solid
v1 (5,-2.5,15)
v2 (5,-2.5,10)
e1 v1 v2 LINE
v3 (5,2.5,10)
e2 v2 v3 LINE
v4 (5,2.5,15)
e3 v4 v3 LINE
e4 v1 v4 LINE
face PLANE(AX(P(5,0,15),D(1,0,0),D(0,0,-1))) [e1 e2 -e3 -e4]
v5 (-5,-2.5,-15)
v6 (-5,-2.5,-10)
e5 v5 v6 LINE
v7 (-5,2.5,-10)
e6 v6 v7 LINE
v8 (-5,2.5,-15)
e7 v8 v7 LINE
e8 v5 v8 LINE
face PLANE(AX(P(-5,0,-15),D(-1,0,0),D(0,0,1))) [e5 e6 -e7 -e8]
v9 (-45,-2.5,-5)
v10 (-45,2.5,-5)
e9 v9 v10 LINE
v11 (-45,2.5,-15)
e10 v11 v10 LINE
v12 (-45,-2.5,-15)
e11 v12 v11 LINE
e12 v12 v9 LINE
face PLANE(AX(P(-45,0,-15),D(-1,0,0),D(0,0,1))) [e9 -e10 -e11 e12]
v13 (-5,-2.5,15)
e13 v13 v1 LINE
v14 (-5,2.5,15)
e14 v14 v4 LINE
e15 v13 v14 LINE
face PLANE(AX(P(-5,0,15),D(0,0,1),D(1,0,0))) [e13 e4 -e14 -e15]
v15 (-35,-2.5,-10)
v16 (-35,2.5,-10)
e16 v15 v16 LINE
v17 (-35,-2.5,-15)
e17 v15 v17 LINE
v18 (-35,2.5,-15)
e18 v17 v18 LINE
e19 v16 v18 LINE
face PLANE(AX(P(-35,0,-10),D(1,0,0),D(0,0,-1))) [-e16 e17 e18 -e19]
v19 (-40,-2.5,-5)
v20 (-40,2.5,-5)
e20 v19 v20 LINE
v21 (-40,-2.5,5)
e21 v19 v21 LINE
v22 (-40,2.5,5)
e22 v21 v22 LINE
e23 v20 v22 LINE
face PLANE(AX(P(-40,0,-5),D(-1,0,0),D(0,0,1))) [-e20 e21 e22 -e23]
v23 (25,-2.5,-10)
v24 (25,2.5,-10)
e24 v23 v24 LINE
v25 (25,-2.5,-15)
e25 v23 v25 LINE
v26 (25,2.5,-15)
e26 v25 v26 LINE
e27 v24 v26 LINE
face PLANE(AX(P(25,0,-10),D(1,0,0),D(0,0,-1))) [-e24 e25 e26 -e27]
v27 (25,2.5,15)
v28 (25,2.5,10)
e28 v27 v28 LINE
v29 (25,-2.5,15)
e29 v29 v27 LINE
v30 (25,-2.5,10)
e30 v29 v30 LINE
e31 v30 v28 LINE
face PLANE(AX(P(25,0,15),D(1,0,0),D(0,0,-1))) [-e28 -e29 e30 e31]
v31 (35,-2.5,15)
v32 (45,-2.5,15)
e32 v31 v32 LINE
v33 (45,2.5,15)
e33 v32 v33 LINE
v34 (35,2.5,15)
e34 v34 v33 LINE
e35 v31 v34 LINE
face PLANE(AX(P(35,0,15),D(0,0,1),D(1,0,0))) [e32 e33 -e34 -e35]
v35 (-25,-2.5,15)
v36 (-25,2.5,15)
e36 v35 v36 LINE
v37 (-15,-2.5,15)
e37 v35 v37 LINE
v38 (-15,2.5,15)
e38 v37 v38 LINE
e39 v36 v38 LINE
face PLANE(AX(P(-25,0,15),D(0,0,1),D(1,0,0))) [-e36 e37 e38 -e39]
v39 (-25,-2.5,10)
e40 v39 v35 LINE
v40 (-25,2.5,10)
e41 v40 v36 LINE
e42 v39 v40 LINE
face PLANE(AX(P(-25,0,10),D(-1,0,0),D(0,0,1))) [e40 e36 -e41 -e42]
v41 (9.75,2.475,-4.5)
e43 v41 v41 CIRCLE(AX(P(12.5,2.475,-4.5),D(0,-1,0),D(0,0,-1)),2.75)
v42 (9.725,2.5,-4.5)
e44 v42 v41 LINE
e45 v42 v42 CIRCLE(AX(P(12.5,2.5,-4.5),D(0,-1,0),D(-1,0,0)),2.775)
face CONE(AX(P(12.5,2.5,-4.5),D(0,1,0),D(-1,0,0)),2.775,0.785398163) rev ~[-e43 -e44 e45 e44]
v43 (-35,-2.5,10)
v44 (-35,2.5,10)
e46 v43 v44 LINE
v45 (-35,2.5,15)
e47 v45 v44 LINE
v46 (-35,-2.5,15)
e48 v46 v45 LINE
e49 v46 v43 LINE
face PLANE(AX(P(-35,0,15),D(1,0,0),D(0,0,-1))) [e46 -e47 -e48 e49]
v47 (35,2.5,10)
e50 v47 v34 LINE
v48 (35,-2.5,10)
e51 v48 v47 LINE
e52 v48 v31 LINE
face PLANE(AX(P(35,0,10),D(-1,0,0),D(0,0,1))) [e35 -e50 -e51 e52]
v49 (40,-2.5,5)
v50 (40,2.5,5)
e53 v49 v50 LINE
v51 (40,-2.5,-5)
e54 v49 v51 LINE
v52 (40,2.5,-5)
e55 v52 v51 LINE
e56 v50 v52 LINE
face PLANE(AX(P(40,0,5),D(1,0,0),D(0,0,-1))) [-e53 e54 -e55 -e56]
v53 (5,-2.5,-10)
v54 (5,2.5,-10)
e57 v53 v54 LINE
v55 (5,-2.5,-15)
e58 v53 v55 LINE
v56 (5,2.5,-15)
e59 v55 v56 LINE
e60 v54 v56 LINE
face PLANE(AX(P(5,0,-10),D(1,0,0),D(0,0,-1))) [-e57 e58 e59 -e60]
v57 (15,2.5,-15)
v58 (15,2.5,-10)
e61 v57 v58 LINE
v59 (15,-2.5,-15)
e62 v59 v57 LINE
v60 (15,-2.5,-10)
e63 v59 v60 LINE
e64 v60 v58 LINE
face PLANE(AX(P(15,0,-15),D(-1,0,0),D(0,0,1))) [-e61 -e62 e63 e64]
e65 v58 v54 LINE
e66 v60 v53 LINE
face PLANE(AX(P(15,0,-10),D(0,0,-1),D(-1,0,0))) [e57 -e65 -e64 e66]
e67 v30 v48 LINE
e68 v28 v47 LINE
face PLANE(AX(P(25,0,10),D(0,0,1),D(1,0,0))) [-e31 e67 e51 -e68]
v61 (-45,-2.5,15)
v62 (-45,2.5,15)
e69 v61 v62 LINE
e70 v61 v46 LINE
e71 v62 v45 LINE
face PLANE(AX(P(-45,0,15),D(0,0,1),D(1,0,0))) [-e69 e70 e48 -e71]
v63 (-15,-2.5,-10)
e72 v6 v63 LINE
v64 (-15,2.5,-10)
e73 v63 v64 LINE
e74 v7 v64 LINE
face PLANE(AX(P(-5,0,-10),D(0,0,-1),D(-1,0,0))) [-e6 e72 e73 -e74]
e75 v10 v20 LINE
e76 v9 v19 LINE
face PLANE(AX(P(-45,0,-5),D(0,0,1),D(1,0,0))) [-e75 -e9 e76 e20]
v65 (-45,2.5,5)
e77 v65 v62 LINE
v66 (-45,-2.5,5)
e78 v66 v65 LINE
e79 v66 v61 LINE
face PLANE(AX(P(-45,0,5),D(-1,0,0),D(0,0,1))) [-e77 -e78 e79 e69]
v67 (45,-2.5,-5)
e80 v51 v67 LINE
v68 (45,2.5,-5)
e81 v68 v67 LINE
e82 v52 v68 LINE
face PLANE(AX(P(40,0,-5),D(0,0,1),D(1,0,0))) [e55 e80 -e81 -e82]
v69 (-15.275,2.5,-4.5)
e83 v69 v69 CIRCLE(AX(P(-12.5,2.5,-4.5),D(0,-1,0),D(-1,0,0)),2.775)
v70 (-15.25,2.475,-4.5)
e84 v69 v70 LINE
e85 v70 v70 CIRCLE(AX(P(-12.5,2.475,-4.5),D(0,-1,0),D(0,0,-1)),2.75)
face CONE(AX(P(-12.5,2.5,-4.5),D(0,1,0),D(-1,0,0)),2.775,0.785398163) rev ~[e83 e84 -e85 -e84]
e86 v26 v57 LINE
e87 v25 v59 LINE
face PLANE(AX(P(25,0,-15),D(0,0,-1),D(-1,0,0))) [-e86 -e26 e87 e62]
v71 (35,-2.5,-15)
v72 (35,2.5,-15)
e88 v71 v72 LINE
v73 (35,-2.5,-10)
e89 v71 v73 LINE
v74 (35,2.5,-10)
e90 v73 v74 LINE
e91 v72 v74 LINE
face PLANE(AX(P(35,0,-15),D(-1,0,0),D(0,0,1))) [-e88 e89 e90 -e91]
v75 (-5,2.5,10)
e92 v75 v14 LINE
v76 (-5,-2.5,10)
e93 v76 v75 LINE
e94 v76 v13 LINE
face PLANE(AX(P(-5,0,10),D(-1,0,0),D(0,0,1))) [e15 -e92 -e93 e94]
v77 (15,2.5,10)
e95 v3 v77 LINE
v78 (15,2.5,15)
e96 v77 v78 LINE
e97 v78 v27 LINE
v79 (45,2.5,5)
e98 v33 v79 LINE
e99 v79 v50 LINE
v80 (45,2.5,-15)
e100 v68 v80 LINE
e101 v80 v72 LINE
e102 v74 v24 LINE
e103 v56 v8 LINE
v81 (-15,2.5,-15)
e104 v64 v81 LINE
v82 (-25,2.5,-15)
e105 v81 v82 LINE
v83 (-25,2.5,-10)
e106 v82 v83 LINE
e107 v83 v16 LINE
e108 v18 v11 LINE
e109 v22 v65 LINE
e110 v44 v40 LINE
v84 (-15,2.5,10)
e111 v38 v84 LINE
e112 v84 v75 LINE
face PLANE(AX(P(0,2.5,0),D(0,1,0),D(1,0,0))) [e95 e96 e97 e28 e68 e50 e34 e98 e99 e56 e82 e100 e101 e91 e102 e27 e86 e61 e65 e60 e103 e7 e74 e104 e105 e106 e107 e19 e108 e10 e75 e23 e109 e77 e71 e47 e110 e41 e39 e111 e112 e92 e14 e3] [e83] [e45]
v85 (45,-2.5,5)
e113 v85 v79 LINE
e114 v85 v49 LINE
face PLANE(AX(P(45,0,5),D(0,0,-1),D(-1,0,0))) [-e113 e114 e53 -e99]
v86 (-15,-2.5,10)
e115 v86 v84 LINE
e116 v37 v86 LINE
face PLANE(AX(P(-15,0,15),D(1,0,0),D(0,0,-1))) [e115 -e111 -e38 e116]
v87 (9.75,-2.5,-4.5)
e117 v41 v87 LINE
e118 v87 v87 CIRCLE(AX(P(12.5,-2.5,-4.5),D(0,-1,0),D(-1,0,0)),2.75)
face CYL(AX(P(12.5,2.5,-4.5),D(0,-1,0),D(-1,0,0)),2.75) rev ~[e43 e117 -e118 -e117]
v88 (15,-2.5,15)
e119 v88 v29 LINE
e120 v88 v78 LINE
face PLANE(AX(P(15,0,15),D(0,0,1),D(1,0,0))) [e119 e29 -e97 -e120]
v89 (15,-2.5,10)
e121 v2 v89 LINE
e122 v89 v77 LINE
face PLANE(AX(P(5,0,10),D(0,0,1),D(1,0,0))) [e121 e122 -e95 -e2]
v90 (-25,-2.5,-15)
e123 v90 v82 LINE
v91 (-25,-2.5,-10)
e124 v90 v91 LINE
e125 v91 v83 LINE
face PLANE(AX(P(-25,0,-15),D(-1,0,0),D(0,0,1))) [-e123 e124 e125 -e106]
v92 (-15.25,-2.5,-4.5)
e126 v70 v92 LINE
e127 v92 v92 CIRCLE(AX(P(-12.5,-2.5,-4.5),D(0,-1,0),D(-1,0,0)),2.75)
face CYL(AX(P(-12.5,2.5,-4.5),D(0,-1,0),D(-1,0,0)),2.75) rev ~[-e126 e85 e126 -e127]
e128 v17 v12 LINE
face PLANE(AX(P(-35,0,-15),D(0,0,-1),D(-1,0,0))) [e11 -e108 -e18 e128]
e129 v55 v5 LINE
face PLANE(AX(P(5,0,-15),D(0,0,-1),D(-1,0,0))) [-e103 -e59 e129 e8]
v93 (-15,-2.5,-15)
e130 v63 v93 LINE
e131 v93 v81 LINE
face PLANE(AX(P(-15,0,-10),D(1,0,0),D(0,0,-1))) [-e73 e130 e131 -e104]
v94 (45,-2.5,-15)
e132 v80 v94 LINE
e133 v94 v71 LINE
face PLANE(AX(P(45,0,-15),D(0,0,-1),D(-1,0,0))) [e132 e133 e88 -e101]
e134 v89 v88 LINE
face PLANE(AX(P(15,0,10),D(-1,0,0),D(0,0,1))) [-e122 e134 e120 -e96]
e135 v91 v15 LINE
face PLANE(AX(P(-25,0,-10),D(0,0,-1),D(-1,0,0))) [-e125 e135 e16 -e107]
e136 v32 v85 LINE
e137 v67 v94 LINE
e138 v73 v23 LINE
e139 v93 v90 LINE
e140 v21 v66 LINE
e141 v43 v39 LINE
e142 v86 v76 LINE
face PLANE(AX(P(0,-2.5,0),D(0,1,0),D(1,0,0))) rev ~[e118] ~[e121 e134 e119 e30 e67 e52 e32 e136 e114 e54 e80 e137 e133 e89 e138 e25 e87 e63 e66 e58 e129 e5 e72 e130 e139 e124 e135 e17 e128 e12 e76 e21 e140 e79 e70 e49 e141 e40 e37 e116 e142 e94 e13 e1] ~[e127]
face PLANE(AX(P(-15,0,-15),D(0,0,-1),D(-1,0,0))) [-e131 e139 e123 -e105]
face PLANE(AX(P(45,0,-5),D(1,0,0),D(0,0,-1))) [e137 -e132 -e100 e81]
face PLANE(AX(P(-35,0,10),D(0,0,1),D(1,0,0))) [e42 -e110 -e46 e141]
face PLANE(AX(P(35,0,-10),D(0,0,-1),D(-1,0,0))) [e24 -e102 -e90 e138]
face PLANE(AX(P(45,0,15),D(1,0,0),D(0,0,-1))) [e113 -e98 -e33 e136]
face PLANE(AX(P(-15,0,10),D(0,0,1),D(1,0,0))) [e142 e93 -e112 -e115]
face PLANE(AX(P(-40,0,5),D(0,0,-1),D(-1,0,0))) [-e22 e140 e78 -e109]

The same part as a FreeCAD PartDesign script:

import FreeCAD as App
import Part
import Sketcher
from FreeCAD import Vector
Q = App.Units.Quantity

doc = App.newDocument("Part")
body = doc.addObject("PartDesign::Body", "Body")

# Sketch on XZ plane
sketch1 = body.newObject("Sketcher::SketchObject", "Sketch")
sketch1.AttachmentSupport = (doc.getObject("XZ_Plane"), [""])
sketch1.MapMode = "FlatFace"
sketch1.addGeometry(Part.LineSegment(Vector(45, -15, 0), Vector(35, -15, 0)), False)
sketch1.addGeometry(Part.LineSegment(Vector(35, -15, 0), Vector(35, -10, 0)), False)
sketch1.addGeometry(Part.LineSegment(Vector(35, -10, 0), Vector(25, -10, 0)), False)
sketch1.addGeometry(Part.LineSegment(Vector(25, -10, 0), Vector(25, -15, 0)), False)
sketch1.addGeometry(Part.LineSegment(Vector(25, -15, 0), Vector(15, -15, 0)), False)
sketch1.addGeometry(Part.LineSegment(Vector(15, -15, 0), Vector(15, -10, 0)), False)
sketch1.addGeometry(Part.LineSegment(Vector(15, -10, 0), Vector(5, -10, 0)), False)
sketch1.addGeometry(Part.LineSegment(Vector(5, -10, 0), Vector(5, -15, 0)), False)
sketch1.addGeometry(Part.LineSegment(Vector(5, -15, 0), Vector(-5, -15, 0)), False)
sketch1.addGeometry(Part.LineSegment(Vector(-5, -15, 0), Vector(-5, -10, 0)), False)
sketch1.addGeometry(Part.LineSegment(Vector(-5, -10, 0), Vector(-15, -10, 0)), False)
sketch1.addGeometry(Part.LineSegment(Vector(-15, -10, 0), Vector(-15, -15, 0)), False)
sketch1.addGeometry(Part.LineSegment(Vector(-15, -15, 0), Vector(-25, -15, 0)), False)
sketch1.addGeometry(Part.LineSegment(Vector(-25, -15, 0), Vector(-25, -10, 0)), False)
sketch1.addGeometry(Part.LineSegment(Vector(-25, -10, 0), Vector(-35, -10, 0)), False)
sketch1.addGeometry(Part.LineSegment(Vector(-35, -10, 0), Vector(-35, -15, 0)), False)
sketch1.addGeometry(Part.LineSegment(Vector(-35, -15, 0), Vector(-45, -15, 0)), False)
sketch1.addGeometry(Part.LineSegment(Vector(-45, -15, 0), Vector(-45, -5, 0)), False)
sketch1.addGeometry(Part.LineSegment(Vector(-45, -5, 0), Vector(-40, -5, 0)), False)
sketch1.addGeometry(Part.LineSegment(Vector(-40, -5, 0), Vector(-40, 5, 0)), False)
sketch1.addGeometry(Part.LineSegment(Vector(-40, 5, 0), Vector(-45, 5, 0)), False)
sketch1.addGeometry(Part.LineSegment(Vector(-45, 5, 0), Vector(-45, 15, 0)), False)
sketch1.addGeometry(Part.LineSegment(Vector(-45, 15, 0), Vector(-35, 15, 0)), False)
sketch1.addGeometry(Part.LineSegment(Vector(-35, 15, 0), Vector(-35, 10, 0)), False)
sketch1.addGeometry(Part.LineSegment(Vector(-35, 10, 0), Vector(-25, 10, 0)), False)
sketch1.addGeometry(Part.LineSegment(Vector(-25, 10, 0), Vector(-25, 15, 0)), False)
sketch1.addGeometry(Part.LineSegment(Vector(-25, 15, 0), Vector(-15, 15, 0)), False)
sketch1.addGeometry(Part.LineSegment(Vector(-15, 15, 0), Vector(-15, 10, 0)), False)
sketch1.addGeometry(Part.LineSegment(Vector(-15, 10, 0), Vector(-5, 10, 0)), False)
sketch1.addGeometry(Part.LineSegment(Vector(-5, 10, 0), Vector(-5, 15, 0)), False)
sketch1.addGeometry(Part.LineSegment(Vector(-5, 15, 0), Vector(5, 15, 0)), False)
sketch1.addGeometry(Part.LineSegment(Vector(5, 15, 0), Vector(5, 10, 0)), False)
sketch1.addGeometry(Part.LineSegment(Vector(5, 10, 0), Vector(15, 10, 0)), False)
sketch1.addGeometry(Part.LineSegment(Vector(15, 10, 0), Vector(15, 15, 0)), False)
sketch1.addGeometry(Part.LineSegment(Vector(15, 15, 0), Vector(25, 15, 0)), False)
sketch1.addGeometry(Part.LineSegment(Vector(25, 15, 0), Vector(25, 10, 0)), False)
sketch1.addGeometry(Part.LineSegment(Vector(25, 10, 0), Vector(35, 10, 0)), False)
sketch1.addGeometry(Part.LineSegment(Vector(35, 10, 0), Vector(35, 15, 0)), False)
sketch1.addGeometry(Part.LineSegment(Vector(35, 15, 0), Vector(45, 15, 0)), False)
sketch1.addGeometry(Part.LineSegment(Vector(45, 15, 0), Vector(45, 5, 0)), False)
sketch1.addGeometry(Part.LineSegment(Vector(45, 5, 0), Vector(40, 5, 0)), False)
sketch1.addGeometry(Part.LineSegment(Vector(40, 5, 0), Vector(40, -5, 0)), False)
sketch1.addGeometry(Part.LineSegment(Vector(40, -5, 0), Vector(45, -5, 0)), False)
sketch1.addGeometry(Part.LineSegment(Vector(45, -5, 0), Vector(45, -15, 0)), False)
sketch1.addConstraint(Sketcher.Constraint("Coincident", 0, 2, 1, 1))
sketch1.addConstraint(Sketcher.Constraint("Coincident", 1, 2, 2, 1))
sketch1.addConstraint(Sketcher.Constraint("Coincident", 2, 2, 3, 1))
sketch1.addConstraint(Sketcher.Constraint("Coincident", 3, 2, 4, 1))
sketch1.addConstraint(Sketcher.Constraint("Coincident", 4, 2, 5, 1))
sketch1.addConstraint(Sketcher.Constraint("Coincident", 5, 2, 6, 1))
sketch1.addConstraint(Sketcher.Constraint("Coincident", 6, 2, 7, 1))
sketch1.addConstraint(Sketcher.Constraint("Coincident", 7, 2, 8, 1))
sketch1.addConstraint(Sketcher.Constraint("Coincident", 8, 2, 9, 1))
sketch1.addConstraint(Sketcher.Constraint("Coincident", 9, 2, 10, 1))
sketch1.addConstraint(Sketcher.Constraint("Coincident", 10, 2, 11, 1))
sketch1.addConstraint(Sketcher.Constraint("Coincident", 11, 2, 12, 1))
sketch1.addConstraint(Sketcher.Constraint("Coincident", 12, 2, 13, 1))
sketch1.addConstraint(Sketcher.Constraint("Coincident", 13, 2, 14, 1))
sketch1.addConstraint(Sketcher.Constraint("Coincident", 14, 2, 15, 1))
sketch1.addConstraint(Sketcher.Constraint("Coincident", 15, 2, 16, 1))
sketch1.addConstraint(Sketcher.Constraint("Coincident", 16, 2, 17, 1))
sketch1.addConstraint(Sketcher.Constraint("Coincident", 17, 2, 18, 1))
sketch1.addConstraint(Sketcher.Constraint("Coincident", 18, 2, 19, 1))
sketch1.addConstraint(Sketcher.Constraint("Coincident", 19, 2, 20, 1))
sketch1.addConstraint(Sketcher.Constraint("Coincident", 20, 2, 21, 1))
sketch1.addConstraint(Sketcher.Constraint("Coincident", 21, 2, 22, 1))
sketch1.addConstraint(Sketcher.Constraint("Coincident", 22, 2, 23, 1))
sketch1.addConstraint(Sketcher.Constraint("Coincident", 23, 2, 24, 1))
sketch1.addConstraint(Sketcher.Constraint("Coincident", 24, 2, 25, 1))
sketch1.addConstraint(Sketcher.Constraint("Coincident", 25, 2, 26, 1))
sketch1.addConstraint(Sketcher.Constraint("Coincident", 26, 2, 27, 1))
sketch1.addConstraint(Sketcher.Constraint("Coincident", 27, 2, 28, 1))
sketch1.addConstraint(Sketcher.Constraint("Coincident", 28, 2, 29, 1))
sketch1.addConstraint(Sketcher.Constraint("Coincident", 29, 2, 30, 1))
sketch1.addConstraint(Sketcher.Constraint("Coincident", 30, 2, 31, 1))
sketch1.addConstraint(Sketcher.Constraint("Coincident", 31, 2, 32, 1))
sketch1.addConstraint(Sketcher.Constraint("Coincident", 32, 2, 33, 1))
sketch1.addConstraint(Sketcher.Constraint("Coincident", 33, 2, 34, 1))
sketch1.addConstraint(Sketcher.Constraint("Coincident", 34, 2, 35, 1))
sketch1.addConstraint(Sketcher.Constraint("Coincident", 35, 2, 36, 1))
sketch1.addConstraint(Sketcher.Constraint("Coincident", 36, 2, 37, 1))
sketch1.addConstraint(Sketcher.Constraint("Coincident", 37, 2, 38, 1))
sketch1.addConstraint(Sketcher.Constraint("Coincident", 38, 2, 39, 1))
sketch1.addConstraint(Sketcher.Constraint("Coincident", 39, 2, 40, 1))
sketch1.addConstraint(Sketcher.Constraint("Coincident", 40, 2, 41, 1))
sketch1.addConstraint(Sketcher.Constraint("Coincident", 41, 2, 42, 1))
sketch1.addConstraint(Sketcher.Constraint("Coincident", 42, 2, 43, 1))
sketch1.addConstraint(Sketcher.Constraint("Coincident", 43, 2, 0, 1))
sketch1.addConstraint(Sketcher.Constraint("Horizontal", 0))
sketch1.addConstraint(Sketcher.Constraint("Vertical", 1))
sketch1.addConstraint(Sketcher.Constraint("Horizontal", 2))
sketch1.addConstraint(Sketcher.Constraint("Vertical", 3))
sketch1.addConstraint(Sketcher.Constraint("Horizontal", 4))
sketch1.addConstraint(Sketcher.Constraint("Vertical", 5))
sketch1.addConstraint(Sketcher.Constraint("Horizontal", 6))
sketch1.addConstraint(Sketcher.Constraint("Vertical", 7))
sketch1.addConstraint(Sketcher.Constraint("Horizontal", 8))
sketch1.addConstraint(Sketcher.Constraint("Vertical", 9))
sketch1.addConstraint(Sketcher.Constraint("Horizontal", 10))
sketch1.addConstraint(Sketcher.Constraint("Vertical", 11))
sketch1.addConstraint(Sketcher.Constraint("Horizontal", 12))
sketch1.addConstraint(Sketcher.Constraint("Vertical", 13))
sketch1.addConstraint(Sketcher.Constraint("Horizontal", 14))
sketch1.addConstraint(Sketcher.Constraint("Vertical", 15))
sketch1.addConstraint(Sketcher.Constraint("Horizontal", 16))
sketch1.addConstraint(Sketcher.Constraint("Vertical", 17))
sketch1.addConstraint(Sketcher.Constraint("Horizontal", 18))
sketch1.addConstraint(Sketcher.Constraint("Vertical", 19))
sketch1.addConstraint(Sketcher.Constraint("Horizontal", 20))
sketch1.addConstraint(Sketcher.Constraint("Vertical", 21))
sketch1.addConstraint(Sketcher.Constraint("Horizontal", 22))
sketch1.addConstraint(Sketcher.Constraint("Vertical", 23))
sketch1.addConstraint(Sketcher.Constraint("Horizontal", 24))
sketch1.addConstraint(Sketcher.Constraint("Vertical", 25))
sketch1.addConstraint(Sketcher.Constraint("Horizontal", 26))
sketch1.addConstraint(Sketcher.Constraint("Vertical", 27))
sketch1.addConstraint(Sketcher.Constraint("Horizontal", 28))
sketch1.addConstraint(Sketcher.Constraint("Vertical", 29))
sketch1.addConstraint(Sketcher.Constraint("Horizontal", 30))
sketch1.addConstraint(Sketcher.Constraint("Vertical", 31))
sketch1.addConstraint(Sketcher.Constraint("Horizontal", 32))
sketch1.addConstraint(Sketcher.Constraint("Vertical", 33))
sketch1.addConstraint(Sketcher.Constraint("Horizontal", 34))
sketch1.addConstraint(Sketcher.Constraint("Vertical", 35))
sketch1.addConstraint(Sketcher.Constraint("Horizontal", 36))
sketch1.addConstraint(Sketcher.Constraint("Vertical", 37))
sketch1.addConstraint(Sketcher.Constraint("Horizontal", 38))
sketch1.addConstraint(Sketcher.Constraint("Vertical", 39))
sketch1.addConstraint(Sketcher.Constraint("Horizontal", 40))
sketch1.addConstraint(Sketcher.Constraint("Vertical", 41))
sketch1.addConstraint(Sketcher.Constraint("Horizontal", 42))
sketch1.addConstraint(Sketcher.Constraint("Vertical", 43))
sketch1.addConstraint(Sketcher.Constraint("Symmetric", 0, 2, 22, 2, -1, 1))
sketch1.addConstraint(Sketcher.Constraint("Symmetric", 2, 2, 24, 2, -1, 1))
sketch1.addConstraint(Sketcher.Constraint("Symmetric", 4, 2, 26, 2, -1, 1))
sketch1.addConstraint(Sketcher.Constraint("Symmetric", 6, 2, 28, 2, -1, 1))
sketch1.addConstraint(Sketcher.Constraint("Symmetric", 8, 2, 30, 2, -1, 1))
sketch1.addConstraint(Sketcher.Constraint("Symmetric", 10, 2, 32, 2, -1, 1))
sketch1.addConstraint(Sketcher.Constraint("Symmetric", 12, 2, 34, 2, -1, 1))
sketch1.addConstraint(Sketcher.Constraint("Symmetric", 14, 2, 36, 2, -1, 1))
sketch1.addConstraint(Sketcher.Constraint("Symmetric", 16, 2, 38, 2, -1, 1))
sketch1.addConstraint(Sketcher.Constraint("Symmetric", 18, 2, 40, 2, -1, 1))
sketch1.addConstraint(Sketcher.Constraint("Symmetric", 20, 2, 42, 2, -1, 1))
sketch1.addConstraint(Sketcher.Constraint("Symmetric", 6, 2, 9, 2, -2))
sketch1.addConstraint(Sketcher.Constraint("Symmetric", 4, 2, 11, 2, -2))
sketch1.addConstraint(Sketcher.Constraint("Symmetric", 2, 2, 13, 2, -2))
sketch1.addConstraint(Sketcher.Constraint("Symmetric", 0, 2, 15, 2, -2))
sketch1.addConstraint(Sketcher.Constraint("Symmetric", 20, 2, 39, 2, -2))
sketch1.addConstraint(Sketcher.Constraint("Horizontal", 0, 2, 3, 2))
sketch1.addConstraint(Sketcher.Constraint("Horizontal", 2, 2, 5, 2))
sketch1.addConstraint(Sketcher.Constraint("Horizontal", 4, 2, 7, 2))
sketch1.addConstraint(Sketcher.Constraint("Equal", 0, 2))
sketch1.addConstraint(Sketcher.Constraint("Equal", 2, 4))
sketch1.addConstraint(Sketcher.Constraint("Equal", 4, 6))
sketch1.addConstraint(Sketcher.Constraint("Equal", 6, 8))
sketch1.addConstraint(Sketcher.Constraint("Equal", 42, 1))
sketch1.addConstraint(Sketcher.Constraint("Equal", 38, 17))
sketch1.addConstraint(Sketcher.Constraint("Equal", 17, 19))
sketch1.addConstraint(Sketcher.Constraint("DistanceX", 0, 2, 0, 1, Q("10 mm")))
sketch1.addConstraint(Sketcher.Constraint("DistanceX", 18, 1, 18, 2, Q("5 mm")))
pad1 = body.newObject("PartDesign::Pad", "Pad")
pad1.Profile = sketch1
pad1.Length = 5
pad1.Midplane = True

# Sketch on XZ plane
sketch2 = body.newObject("Sketcher::SketchObject", "Sketch001")
sketch2.AttachmentSupport = (doc.getObject("XZ_Plane"), [""])
sketch2.MapMode = "FlatFace"
sketch2.AttachmentOffset = App.Placement(Vector(0, 0, -2.5), App.Rotation())
sketch2.addGeometry(Part.Circle(Vector(12.5, -4.5, 0), Vector(0, 0, 1), 2.8), False)
sketch2.addGeometry(Part.Circle(Vector(-12.5, -4.5, 0), Vector(0, 0, 1), 2.8), False)
sketch2.addConstraint(Sketcher.Constraint("Equal", 0, 1))
sketch2.addConstraint(Sketcher.Constraint("Symmetric", 0, 3, 1, 3, -2))
sketch2.addConstraint(Sketcher.Constraint("Diameter", 0, Q("5.5 mm")))
sketch2.addConstraint(Sketcher.Constraint("DistanceX", 1, 3, 0, 3, Q("25 mm")))
sketch2.addConstraint(Sketcher.Constraint("DistanceY", 0, 3, -1, 1, Q("4.5 mm")))
doc.recompute()
hole = body.newObject("PartDesign::Hole", "Hole")
hole.Profile = sketch2
hole.ThreadType = "None"
hole.Diameter = 5.5
hole.DepthType = "ThroughAll"
hole.HoleCutType = "Countersink"
hole.HoleCutDiameter = 5.55
hole.HoleCutCountersinkAngle = 90
hole.Reversed = True

doc.recompute()
